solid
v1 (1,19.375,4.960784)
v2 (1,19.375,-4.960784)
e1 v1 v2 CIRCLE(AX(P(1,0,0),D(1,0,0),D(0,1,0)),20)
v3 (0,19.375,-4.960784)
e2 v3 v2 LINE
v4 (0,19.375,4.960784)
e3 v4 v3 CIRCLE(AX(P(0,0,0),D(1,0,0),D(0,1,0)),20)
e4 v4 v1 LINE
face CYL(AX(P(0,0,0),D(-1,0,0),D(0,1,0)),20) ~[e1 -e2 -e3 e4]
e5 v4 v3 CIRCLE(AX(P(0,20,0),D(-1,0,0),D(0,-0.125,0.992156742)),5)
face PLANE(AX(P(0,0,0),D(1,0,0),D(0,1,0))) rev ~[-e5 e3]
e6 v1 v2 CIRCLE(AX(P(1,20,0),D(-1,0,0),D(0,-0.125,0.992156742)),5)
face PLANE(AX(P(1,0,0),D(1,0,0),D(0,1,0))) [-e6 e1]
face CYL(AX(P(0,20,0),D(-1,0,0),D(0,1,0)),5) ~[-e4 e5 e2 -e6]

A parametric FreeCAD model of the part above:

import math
import FreeCAD as App
import Part
import Sketcher

V = App.Vector
Q = App.Units.Quantity

doc = App.newDocument("Part")
body = doc.addObject("PartDesign::Body", "Body")

sketch1 = body.newObject("Sketcher::SketchObject", "Sketch")
sketch1.AttachmentSupport = (doc.getObject("YZ_Plane"), [""])
sketch1.MapMode = "FlatFace"
sketch1.addGeometry([
    Part.ArcOfCircle(Part.Circle(V(20, 0, 0), V(0, 0, 1), 5), math.radians(-97), math.radians(97)),
    Part.ArcOfCircle(Part.Circle(V(0, 0, 0), V(0, 0, 1), 20), math.radians(14), math.radians(346)),
], False)
sketch1.addConstraint([
    Sketcher.Constraint("Coincident", 0, 1, 1, 2),
    Sketcher.Constraint("Coincident", 1, 1, 0, 2),
    Sketcher.Constraint("Coincident", 1, 3, -1, 1),
    Sketcher.Constraint("PointOnObject", 0, 3, -1),
    Sketcher.Constraint("Radius", 0, Q("5 mm")),
    Sketcher.Constraint("Radius", 1, Q("20 mm")),
    Sketcher.Constraint("DistanceX", -1, 1, 0, 3, Q("20 mm")),
])
pad1 = body.newObject("PartDesign::Pad", "Pad")
pad1.Profile = sketch1
pad1.Length = 1

doc.recompute()
